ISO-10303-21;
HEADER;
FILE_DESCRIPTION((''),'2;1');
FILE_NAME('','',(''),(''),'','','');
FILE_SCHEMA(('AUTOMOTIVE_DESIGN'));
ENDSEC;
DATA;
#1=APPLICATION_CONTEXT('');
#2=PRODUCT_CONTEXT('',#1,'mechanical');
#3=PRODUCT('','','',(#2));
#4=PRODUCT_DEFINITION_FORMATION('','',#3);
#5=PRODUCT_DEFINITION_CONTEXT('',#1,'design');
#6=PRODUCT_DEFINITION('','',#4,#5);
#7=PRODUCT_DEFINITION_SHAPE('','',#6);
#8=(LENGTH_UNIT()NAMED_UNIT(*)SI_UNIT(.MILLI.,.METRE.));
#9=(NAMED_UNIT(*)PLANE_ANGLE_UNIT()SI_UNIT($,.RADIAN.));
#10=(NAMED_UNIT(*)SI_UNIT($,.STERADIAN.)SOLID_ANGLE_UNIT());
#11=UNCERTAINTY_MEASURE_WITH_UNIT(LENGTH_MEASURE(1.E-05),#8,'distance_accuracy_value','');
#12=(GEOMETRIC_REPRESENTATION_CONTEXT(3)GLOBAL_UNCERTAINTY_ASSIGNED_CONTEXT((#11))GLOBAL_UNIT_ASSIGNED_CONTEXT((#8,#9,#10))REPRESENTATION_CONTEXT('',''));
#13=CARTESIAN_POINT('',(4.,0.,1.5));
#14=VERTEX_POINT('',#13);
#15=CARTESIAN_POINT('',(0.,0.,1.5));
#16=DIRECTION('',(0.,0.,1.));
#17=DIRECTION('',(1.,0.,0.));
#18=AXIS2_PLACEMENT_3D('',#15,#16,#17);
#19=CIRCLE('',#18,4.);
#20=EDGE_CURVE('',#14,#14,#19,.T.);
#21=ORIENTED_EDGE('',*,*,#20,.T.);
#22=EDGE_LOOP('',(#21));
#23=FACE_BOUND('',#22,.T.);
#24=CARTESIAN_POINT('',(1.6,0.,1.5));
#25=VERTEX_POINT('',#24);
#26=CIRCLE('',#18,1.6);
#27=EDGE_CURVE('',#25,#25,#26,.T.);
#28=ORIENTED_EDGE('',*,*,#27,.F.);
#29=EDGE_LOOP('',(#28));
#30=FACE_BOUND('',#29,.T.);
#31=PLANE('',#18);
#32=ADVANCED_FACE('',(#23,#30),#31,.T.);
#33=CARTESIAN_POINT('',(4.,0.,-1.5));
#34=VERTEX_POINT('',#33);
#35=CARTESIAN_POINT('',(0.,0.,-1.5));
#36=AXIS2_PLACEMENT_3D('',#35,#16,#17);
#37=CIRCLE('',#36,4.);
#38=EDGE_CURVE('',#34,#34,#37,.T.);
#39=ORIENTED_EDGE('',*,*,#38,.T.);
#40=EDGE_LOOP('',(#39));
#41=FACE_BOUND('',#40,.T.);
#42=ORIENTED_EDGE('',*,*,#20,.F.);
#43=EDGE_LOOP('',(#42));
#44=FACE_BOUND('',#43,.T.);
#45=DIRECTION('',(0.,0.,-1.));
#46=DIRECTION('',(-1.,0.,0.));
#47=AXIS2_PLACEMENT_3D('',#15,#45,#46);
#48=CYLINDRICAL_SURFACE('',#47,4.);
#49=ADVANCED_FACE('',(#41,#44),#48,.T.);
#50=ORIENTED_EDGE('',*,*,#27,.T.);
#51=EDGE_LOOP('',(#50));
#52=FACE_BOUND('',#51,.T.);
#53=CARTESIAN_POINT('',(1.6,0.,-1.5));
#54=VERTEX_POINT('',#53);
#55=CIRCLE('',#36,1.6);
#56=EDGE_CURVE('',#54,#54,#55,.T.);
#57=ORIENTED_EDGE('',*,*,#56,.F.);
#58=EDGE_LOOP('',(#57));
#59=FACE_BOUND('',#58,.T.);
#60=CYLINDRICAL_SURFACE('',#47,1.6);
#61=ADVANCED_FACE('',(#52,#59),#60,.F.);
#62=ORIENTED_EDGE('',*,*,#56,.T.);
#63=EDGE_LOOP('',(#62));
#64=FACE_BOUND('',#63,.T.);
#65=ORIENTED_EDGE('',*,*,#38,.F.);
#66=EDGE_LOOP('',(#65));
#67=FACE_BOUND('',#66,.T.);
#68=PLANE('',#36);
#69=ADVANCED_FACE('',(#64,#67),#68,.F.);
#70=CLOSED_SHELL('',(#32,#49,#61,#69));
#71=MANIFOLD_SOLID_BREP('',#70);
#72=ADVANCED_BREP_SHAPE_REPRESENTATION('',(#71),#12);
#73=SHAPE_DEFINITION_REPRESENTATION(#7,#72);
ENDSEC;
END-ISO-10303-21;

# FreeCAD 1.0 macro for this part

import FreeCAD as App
import Part
import Sketcher

V = App.Vector
Q = App.Units.Quantity

doc = App.newDocument("Part")
body = doc.addObject("PartDesign::Body", "Body")

sketch1 = body.newObject("Sketcher::SketchObject", "Sketch")
sketch1.AttachmentSupport = (doc.getObject("XY_Plane"), [""])
sketch1.MapMode = "FlatFace"
sketch1.addGeometry([
    Part.Circle(V(0, 0, 0), V(0, 0, 1), 4),
    Part.Circle(V(0, 0, 0), V(0, 0, 1), 1.6),
], False)
sketch1.addConstraint([
    Sketcher.Constraint("Coincident", 0, 3, -1, 1),
    Sketcher.Constraint("Coincident", 1, 3, -1, 1),
    Sketcher.Constraint("Diameter", 0, Q("8 mm")),
    Sketcher.Constraint("Diameter", 1, Q("3.2 mm")),
])
pad1 = body.newObject("PartDesign::Pad", "Pad")
pad1.Profile = sketch1
pad1.Type = "TwoLengths"
pad1.Length = 1.5
pad1.Length2 = 1.5

doc.recompute()
